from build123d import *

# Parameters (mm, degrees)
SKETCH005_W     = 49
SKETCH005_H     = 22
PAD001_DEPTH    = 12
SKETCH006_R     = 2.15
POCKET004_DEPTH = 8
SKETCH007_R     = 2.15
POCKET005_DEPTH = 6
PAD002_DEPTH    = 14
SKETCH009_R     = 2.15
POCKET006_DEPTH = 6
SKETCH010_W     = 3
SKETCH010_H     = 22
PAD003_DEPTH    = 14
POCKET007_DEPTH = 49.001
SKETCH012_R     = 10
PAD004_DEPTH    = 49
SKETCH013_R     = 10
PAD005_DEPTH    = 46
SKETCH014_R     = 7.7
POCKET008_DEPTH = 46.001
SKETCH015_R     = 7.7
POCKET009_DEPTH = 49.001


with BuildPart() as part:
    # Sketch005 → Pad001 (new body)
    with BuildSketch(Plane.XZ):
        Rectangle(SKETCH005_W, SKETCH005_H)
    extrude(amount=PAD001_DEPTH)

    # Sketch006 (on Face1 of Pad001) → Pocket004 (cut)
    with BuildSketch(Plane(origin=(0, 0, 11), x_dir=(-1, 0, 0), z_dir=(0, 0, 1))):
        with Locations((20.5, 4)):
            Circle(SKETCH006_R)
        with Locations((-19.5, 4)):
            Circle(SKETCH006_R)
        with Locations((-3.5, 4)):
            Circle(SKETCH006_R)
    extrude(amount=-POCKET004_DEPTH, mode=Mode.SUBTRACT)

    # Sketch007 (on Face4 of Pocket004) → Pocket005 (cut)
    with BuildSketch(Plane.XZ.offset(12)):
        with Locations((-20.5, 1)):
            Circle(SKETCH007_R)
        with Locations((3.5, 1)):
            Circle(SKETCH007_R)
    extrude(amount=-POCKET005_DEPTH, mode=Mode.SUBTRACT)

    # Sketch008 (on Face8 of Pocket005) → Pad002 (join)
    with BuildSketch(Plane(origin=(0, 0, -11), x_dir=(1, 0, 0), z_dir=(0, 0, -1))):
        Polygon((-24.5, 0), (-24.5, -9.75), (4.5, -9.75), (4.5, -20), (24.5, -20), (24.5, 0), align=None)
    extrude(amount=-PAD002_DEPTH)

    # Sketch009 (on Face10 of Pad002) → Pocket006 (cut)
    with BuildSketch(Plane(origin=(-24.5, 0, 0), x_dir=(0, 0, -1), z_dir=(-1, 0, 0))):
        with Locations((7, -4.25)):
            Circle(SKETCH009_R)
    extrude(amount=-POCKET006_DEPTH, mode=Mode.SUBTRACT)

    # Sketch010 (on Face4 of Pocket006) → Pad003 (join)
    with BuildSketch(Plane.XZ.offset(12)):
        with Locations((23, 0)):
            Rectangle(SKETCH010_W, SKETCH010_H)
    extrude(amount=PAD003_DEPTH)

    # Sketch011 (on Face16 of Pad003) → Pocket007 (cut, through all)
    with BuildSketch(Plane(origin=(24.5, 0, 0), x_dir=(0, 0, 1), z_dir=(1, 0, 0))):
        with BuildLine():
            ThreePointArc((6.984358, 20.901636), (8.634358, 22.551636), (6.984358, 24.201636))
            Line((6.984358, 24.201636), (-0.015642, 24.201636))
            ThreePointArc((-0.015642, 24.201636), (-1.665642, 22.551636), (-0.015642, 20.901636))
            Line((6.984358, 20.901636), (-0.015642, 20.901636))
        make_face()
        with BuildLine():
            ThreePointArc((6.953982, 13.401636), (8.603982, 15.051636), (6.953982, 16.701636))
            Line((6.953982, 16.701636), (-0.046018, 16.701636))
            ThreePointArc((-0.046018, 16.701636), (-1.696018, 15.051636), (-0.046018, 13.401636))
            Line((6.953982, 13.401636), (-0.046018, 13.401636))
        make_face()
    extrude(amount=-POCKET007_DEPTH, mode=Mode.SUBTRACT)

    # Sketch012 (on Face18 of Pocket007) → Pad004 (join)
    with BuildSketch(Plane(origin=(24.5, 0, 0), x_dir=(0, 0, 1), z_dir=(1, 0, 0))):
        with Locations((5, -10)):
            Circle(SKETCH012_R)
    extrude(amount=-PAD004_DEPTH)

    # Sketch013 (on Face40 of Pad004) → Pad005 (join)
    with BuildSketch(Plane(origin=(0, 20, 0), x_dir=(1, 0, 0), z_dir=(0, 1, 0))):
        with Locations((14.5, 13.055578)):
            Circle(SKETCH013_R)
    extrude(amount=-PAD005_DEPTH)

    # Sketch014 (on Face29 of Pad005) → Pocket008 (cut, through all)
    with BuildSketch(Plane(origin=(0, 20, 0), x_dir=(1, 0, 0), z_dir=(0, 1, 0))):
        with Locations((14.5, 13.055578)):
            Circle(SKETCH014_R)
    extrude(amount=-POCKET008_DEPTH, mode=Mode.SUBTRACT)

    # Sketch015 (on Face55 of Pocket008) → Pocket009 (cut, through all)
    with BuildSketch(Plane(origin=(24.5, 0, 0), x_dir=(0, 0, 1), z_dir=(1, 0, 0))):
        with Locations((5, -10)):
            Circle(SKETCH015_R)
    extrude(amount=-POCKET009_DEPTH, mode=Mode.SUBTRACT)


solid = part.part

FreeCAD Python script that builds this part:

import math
import FreeCAD as App
import Part
import Sketcher


def add_polygon(sketch, points):
    """Adds a closed chain of lines whose ends are joined by coincident constraints."""
    first, n = sketch.GeometryCount, len(points)
    for a, b in zip(points, points[1:] + points[:1]):
        sketch.addGeometry(Part.LineSegment(App.Vector(*a, 0), App.Vector(*b, 0)), False)
    for i in range(n):
        sketch.addConstraint(Sketcher.Constraint("Coincident", first + i, 2, first + (i + 1) % n, 1))

doc = App.newDocument("Part")
body = doc.addObject("PartDesign::Body", "Body")

# Sketch on XZ plane
sketch1 = body.newObject("Sketcher::SketchObject", "Sketch")
sketch1.AttachmentSupport = (doc.getObject("XZ_Plane"), [""])
sketch1.MapMode = "FlatFace"
add_polygon(sketch1, [(-24.5, 11), (-24.5, -11), (24.5, -11), (24.5, 11)])  # lines 0-3
sketch1.addConstraint([
    Sketcher.Constraint("Vertical", 0),
    Sketcher.Constraint("Horizontal", 1),
    Sketcher.Constraint("Vertical", 2),
    Sketcher.Constraint("Horizontal", 3),
    Sketcher.Constraint("Symmetric", 0, 2, 2, 2, -1, 1),
    Sketcher.Constraint("DistanceX", 1, 1, 1, 2, 49.0),
    Sketcher.Constraint("DistanceY", 0, 2, 0, 1, 22.0),
])
pad1 = body.newObject("PartDesign::Pad", "Pad")
pad1.Profile = sketch1
pad1.Length = 12

# Sketch on XY plane
sketch2 = body.newObject("Sketcher::SketchObject", "Sketch001")
sketch2.AttachmentSupport = (doc.getObject("XY_Plane"), [""])
sketch2.MapMode = "FlatFace"
sketch2.AttachmentOffset = App.Placement(App.Vector(0, 0, 11), App.Rotation())
sketch2.addGeometry([
    Part.Circle(App.Vector(-20.5, -4, 0), App.Vector(0, 0, 1), 2.15),
    Part.Circle(App.Vector(19.5, -4, 0), App.Vector(0, 0, 1), 2.15),
    Part.Circle(App.Vector(3.5, -4, 0), App.Vector(0, 0, 1), 2.15),
], False)
sketch2.addConstraint([
    Sketcher.Constraint("Equal", 0, 1),
    Sketcher.Constraint("Equal", 1, 2),
    Sketcher.Constraint("Horizontal", 0, 3, 1, 3),
    Sketcher.Constraint("Horizontal", 1, 3, 2, 3),
    Sketcher.Constraint("Diameter", 0, 4.3),
    Sketcher.Constraint("DistanceY", 0, 3, -1, 1, 4.0),
    Sketcher.Constraint("DistanceX", 0, 3, 1, 3, 40.0),
    Sketcher.Constraint("DistanceX", 2, 3, 1, 3, 16.0),
    Sketcher.Constraint("DistanceX", 0, 3, -1, 1, 20.5),
])
pocket1 = body.newObject("PartDesign::Pocket", "Pocket")
pocket1.Profile = sketch2
pocket1.Length = 8

# Sketch on XZ plane
sketch3 = body.newObject("Sketcher::SketchObject", "Sketch002")
sketch3.AttachmentSupport = (doc.getObject("XZ_Plane"), [""])
sketch3.MapMode = "FlatFace"
sketch3.AttachmentOffset = App.Placement(App.Vector(0, 0, 12), App.Rotation())
sketch3.addGeometry([
    Part.Circle(App.Vector(-20.5, 1, 0), App.Vector(0, 0, 1), 2.15),
    Part.Circle(App.Vector(3.5, 1, 0), App.Vector(0, 0, 1), 2.15),
], False)
sketch3.addConstraint([
    Sketcher.Constraint("Equal", 0, 1),
    Sketcher.Constraint("Horizontal", 0, 3, 1, 3),
    Sketcher.Constraint("Diameter", 0, 4.3),
    Sketcher.Constraint("DistanceY", -1, 1, 0, 3, 1.0),
    Sketcher.Constraint("DistanceX", 0, 3, 1, 3, 24.0),
    Sketcher.Constraint("DistanceX", 0, 3, -1, 1, 20.5),
])
pocket2 = body.newObject("PartDesign::Pocket", "Pocket001")
pocket2.Profile = sketch3
pocket2.Length = 6

# Sketch on XY plane
sketch4 = body.newObject("Sketcher::SketchObject", "Sketch003")
sketch4.AttachmentSupport = (doc.getObject("XY_Plane"), [""])
sketch4.MapMode = "FlatFace"
sketch4.AttachmentOffset = App.Placement(App.Vector(0, 0, -11), App.Rotation())
add_polygon(sketch4, [(-24.5, 0), (-24.5, 9.75), (4.5, 9.75), (4.5, 20), (24.5, 20), (24.5, 0)])  # lines 0-5
sketch4.addConstraint([
    Sketcher.Constraint("Vertical", 0),
    Sketcher.Constraint("Horizontal", 1),
    Sketcher.Constraint("Vertical", 2),
    Sketcher.Constraint("Horizontal", 3),
    Sketcher.Constraint("Vertical", 4),
    Sketcher.Constraint("Horizontal", 5),
    Sketcher.Constraint("Symmetric", 4, 2, 5, 2, -1, 1),
    Sketcher.Constraint("Equal", 3, 4),
    Sketcher.Constraint("DistanceX", 1, 1, 1, 2, 29.0),
    Sketcher.Constraint("DistanceX", 3, 1, 3, 2, 20.0),
    Sketcher.Constraint("DistanceY", 0, 1, 0, 2, 9.75),
])
pad2 = body.newObject("PartDesign::Pad", "Pad001")
pad2.Profile = sketch4
pad2.Length = 14

# Sketch on YZ plane
sketch5 = body.newObject("Sketcher::SketchObject", "Sketch004")
sketch5.AttachmentSupport = (doc.getObject("YZ_Plane"), [""])
sketch5.MapMode = "FlatFace"
sketch5.AttachmentOffset = App.Placement(App.Vector(0, 0, -24.5), App.Rotation())
sketch5.addGeometry(Part.Circle(App.Vector(4.25, -7, 0), App.Vector(0, 0, 1), 2.15), False)
sketch5.addConstraint([
    Sketcher.Constraint("Diameter", 0, 4.3),
    Sketcher.Constraint("DistanceY", 0, 3, -1, 1, 7.0),
    Sketcher.Constraint("DistanceX", -1, 1, 0, 3, 4.25),
])
pocket3 = body.newObject("PartDesign::Pocket", "Pocket002")
pocket3.Profile = sketch5
pocket3.Length = 6
pocket3.Reversed = True

# Sketch on XZ plane
sketch6 = body.newObject("Sketcher::SketchObject", "Sketch005")
sketch6.AttachmentSupport = (doc.getObject("XZ_Plane"), [""])
sketch6.MapMode = "FlatFace"
sketch6.AttachmentOffset = App.Placement(App.Vector(0, 0, 12), App.Rotation())
add_polygon(sketch6, [(21.5, 11), (21.5, -11), (24.5, -11), (24.5, 11)])  # lines 0-3
sketch6.addConstraint([
    Sketcher.Constraint("Vertical", 0),
    Sketcher.Constraint("Horizontal", 1),
    Sketcher.Constraint("Vertical", 2),
    Sketcher.Constraint("Horizontal", 3),
    Sketcher.Constraint("DistanceX", 1, 1, 1, 2, 3.0),
    Sketcher.Constraint("DistanceY", 0, 2, 0, 1, 22.0),
    Sketcher.Constraint("DistanceY", 0, 2, -1, 1, 11.0),
    Sketcher.Constraint("DistanceX", -1, 1, 0, 2, 21.5),
])
pad3 = body.newObject("PartDesign::Pad", "Pad002")
pad3.Profile = sketch6
pad3.Length = 14

# Sketch on YZ plane
sketch7 = body.newObject("Sketcher::SketchObject", "Sketch006")
sketch7.AttachmentSupport = (doc.getObject("YZ_Plane"), [""])
sketch7.MapMode = "FlatFace"
sketch7.AttachmentOffset = App.Placement(App.Vector(0, 0, 24.5), App.Rotation())
sketch7.addGeometry([
    Part.ArcOfCircle(Part.Circle(App.Vector(-22.551636, 6.984358, 0), App.Vector(0, 0, 1), 1.65), math.radians(0), math.radians(180)),  # 0
    Part.LineSegment(App.Vector(-24.201636, 6.984358, 0), App.Vector(-24.201636, -0.015642, 0)),  # 1
    Part.ArcOfCircle(Part.Circle(App.Vector(-22.551636, -0.015642, 0), App.Vector(0, 0, 1), 1.65), math.radians(180), math.radians(360)),  # 2
    Part.LineSegment(App.Vector(-20.901636, -0.015642, 0), App.Vector(-20.901636, 6.984358, 0)),  # 3
    Part.ArcOfCircle(Part.Circle(App.Vector(-15.051636, 6.953982, 0), App.Vector(0, 0, 1), 1.65), math.radians(0), math.radians(180)),  # 4
    Part.LineSegment(App.Vector(-16.701636, 6.953982, 0), App.Vector(-16.701636, -0.046018, 0)),  # 5
    Part.ArcOfCircle(Part.Circle(App.Vector(-15.051636, -0.046018, 0), App.Vector(0, 0, 1), 1.65), math.radians(180), math.radians(360)),  # 6
    Part.LineSegment(App.Vector(-13.401636, -0.046018, 0), App.Vector(-13.401636, 6.953982, 0)),  # 7
], False)
sketch7.addConstraint([
    Sketcher.Constraint("Tangent", 0, 2, 1, 1),
    Sketcher.Constraint("Tangent", 1, 2, 2, 1),
    Sketcher.Constraint("Tangent", 2, 2, 3, 1),
    Sketcher.Constraint("Tangent", 3, 2, 0, 1),
    Sketcher.Constraint("Tangent", 4, 2, 5, 1),
    Sketcher.Constraint("Tangent", 5, 2, 6, 1),
    Sketcher.Constraint("Tangent", 6, 2, 7, 1),
    Sketcher.Constraint("Tangent", 7, 2, 4, 1),
    Sketcher.Constraint("Vertical", 1),
    Sketcher.Constraint("Vertical", 3),
    Sketcher.Constraint("Vertical", 5),
    Sketcher.Constraint("Vertical", 7),
    Sketcher.Constraint("Equal", 2, 4),
    Sketcher.Constraint("Equal", 3, 5),
    Sketcher.Constraint("DistanceY", 1, 2, 1, 1, 7.0),
    Sketcher.Constraint("Radius", 0, 1.65),
    Sketcher.Constraint("DistanceX", 0, 3, 4, 3, 7.5),
    Sketcher.Constraint("DistanceY", -1, 1, 0, 3, 6.984358),
    Sketcher.Constraint("DistanceY", 6, 3, -1, 1, 0.046018),
    Sketcher.Constraint("DistanceX", 0, 3, -1, 1, 22.551636),
])
pocket4 = body.newObject("PartDesign::Pocket", "Pocket003")
pocket4.Profile = sketch7
pocket4.Type = "ThroughAll"

# Sketch on YZ plane
sketch8 = body.newObject("Sketcher::SketchObject", "Sketch007")
sketch8.AttachmentSupport = (doc.getObject("YZ_Plane"), [""])
sketch8.MapMode = "FlatFace"
sketch8.AttachmentOffset = App.Placement(App.Vector(0, 0, 24.5), App.Rotation())
sketch8.addGeometry(Part.Circle(App.Vector(10, 5, 0), App.Vector(0, 0, 1), 10), False)
sketch8.addConstraint([
    Sketcher.Constraint("Diameter", 0, 20.0),
    Sketcher.Constraint("DistanceX", -1, 1, 0, 3, 10.0),
    Sketcher.Constraint("DistanceY", -1, 1, 0, 3, 5.0),
])
pad4 = body.newObject("PartDesign::Pad", "Pad003")
pad4.Profile = sketch8
pad4.Length = 49
pad4.Reversed = True

# Sketch on XZ plane
sketch9 = body.newObject("Sketcher::SketchObject", "Sketch008")
sketch9.AttachmentSupport = (doc.getObject("XZ_Plane"), [""])
sketch9.MapMode = "FlatFace"
sketch9.AttachmentOffset = App.Placement(App.Vector(0, 0, -20), App.Rotation())
sketch9.addGeometry(Part.Circle(App.Vector(14.5, -13.055578, 0), App.Vector(0, 0, 1), 10), False)
sketch9.addConstraint([
    Sketcher.Constraint("Diameter", 0, 20.0),
    Sketcher.Constraint("DistanceX", -1, 1, 0, 3, 14.5),
    Sketcher.Constraint("DistanceY", 0, 3, -1, 1, 13.055578),
])
pad5 = body.newObject("PartDesign::Pad", "Pad004")
pad5.Profile = sketch9
pad5.Length = 46

# Sketch on XZ plane
sketch10 = body.newObject("Sketcher::SketchObject", "Sketch009")
sketch10.AttachmentSupport = (doc.getObject("XZ_Plane"), [""])
sketch10.MapMode = "FlatFace"
sketch10.AttachmentOffset = App.Placement(App.Vector(0, 0, -20), App.Rotation())
sketch10.addGeometry(Part.Circle(App.Vector(14.5, -13.055578, 0), App.Vector(0, 0, 1), 7.7), False)
sketch10.addConstraint([
    Sketcher.Constraint("Diameter", 0, 15.4),
    Sketcher.Constraint("DistanceX", -1, 1, 0, 3, 14.5),
    Sketcher.Constraint("DistanceY", 0, 3, -1, 1, 13.055578),
])
pocket5 = body.newObject("PartDesign::Pocket", "Pocket004")
pocket5.Profile = sketch10
pocket5.Type = "ThroughAll"
pocket5.Reversed = True

# Sketch on YZ plane
sketch11 = body.newObject("Sketcher::SketchObject", "Sketch010")
sketch11.AttachmentSupport = (doc.getObject("YZ_Plane"), [""])
sketch11.MapMode = "FlatFace"
sketch11.AttachmentOffset = App.Placement(App.Vector(0, 0, 24.5), App.Rotation())
sketch11.addGeometry(Part.Circle(App.Vector(10, 5, 0), App.Vector(0, 0, 1), 7.7), False)
sketch11.addConstraint([
    Sketcher.Constraint("Diameter", 0, 15.4),
    Sketcher.Constraint("DistanceX", -1, 1, 0, 3, 10.0),
    Sketcher.Constraint("DistanceY", -1, 1, 0, 3, 5.0),
])
pocket6 = body.newObject("PartDesign::Pocket", "Pocket005")
pocket6.Profile = sketch11
pocket6.Type = "ThroughAll"

doc.recompute()
